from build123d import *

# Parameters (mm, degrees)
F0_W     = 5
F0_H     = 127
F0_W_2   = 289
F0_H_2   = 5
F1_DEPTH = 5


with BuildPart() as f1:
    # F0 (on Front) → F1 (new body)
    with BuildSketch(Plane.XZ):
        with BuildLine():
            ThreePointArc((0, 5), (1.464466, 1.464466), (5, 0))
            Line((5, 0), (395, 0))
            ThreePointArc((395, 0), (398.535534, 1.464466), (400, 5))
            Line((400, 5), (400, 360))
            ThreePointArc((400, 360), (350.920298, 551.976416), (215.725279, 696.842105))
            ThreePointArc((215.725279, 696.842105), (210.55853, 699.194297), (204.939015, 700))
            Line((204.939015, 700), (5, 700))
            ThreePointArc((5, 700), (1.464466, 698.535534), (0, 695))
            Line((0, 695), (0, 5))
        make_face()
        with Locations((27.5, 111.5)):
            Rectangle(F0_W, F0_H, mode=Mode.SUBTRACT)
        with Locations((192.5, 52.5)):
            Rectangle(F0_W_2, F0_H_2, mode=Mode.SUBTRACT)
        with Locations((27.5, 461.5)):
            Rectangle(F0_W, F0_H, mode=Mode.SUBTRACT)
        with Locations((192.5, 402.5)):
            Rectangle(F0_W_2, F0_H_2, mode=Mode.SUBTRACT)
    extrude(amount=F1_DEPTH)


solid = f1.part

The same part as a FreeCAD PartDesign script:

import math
import FreeCAD as App
import Part
import Sketcher
from FreeCAD import Vector

doc = App.newDocument("Part")
params = doc.addObject("Spreadsheet::Sheet", "Params")
for row, (alias, value) in enumerate([
    ("sketch1_radius", "5 mm"),
    ("sketch1_radius2", "400 mm"),
    ("sketch1_width", "5 mm"),
    ("sketch1_width2", "289 mm"),
    ("sketch1_height", "355 mm"),
    ("pad1_length", "5 mm"),
], start=1):
    params.set(f"A{row}", alias)
    params.set(f"B{row}", "=" + value)
    params.setAlias(f"B{row}", alias)

body = doc.addObject("PartDesign::Body", "Body")

# Sketch on XZ plane
sketch1 = body.newObject("Sketcher::SketchObject", "Sketch")
sketch1.AttachmentSupport = (doc.getObject("XZ_Plane"), [""])
sketch1.MapMode = "FlatFace"
sketch1.addGeometry([
    Part.ArcOfCircle(Part.Circle(Vector(5, 5, 0), Vector(0, 0, 1), 5), math.radians(180), math.radians(270)),  # 0
    Part.LineSegment(Vector(5, 0, 0), Vector(395, 0, 0)),  # 1
    Part.ArcOfCircle(Part.Circle(Vector(395, 5, 0), Vector(0, 0, 1), 5), math.radians(-90), math.radians(0)),  # 2
    Part.LineSegment(Vector(400, 5, 0), Vector(400, 360, 0)),  # 3
    Part.ArcOfCircle(Part.Circle(Vector(0, 360, 0), Vector(0, 0, 1), 400), math.radians(0), math.radians(57)),  # 4
    Part.ArcOfCircle(Part.Circle(Vector(204.9, 680, 0), Vector(0, 0, 1), 20), math.radians(57), math.radians(90)),  # 5
    Part.LineSegment(Vector(204.9, 700, 0), Vector(5, 700, 0)),  # 6
    Part.ArcOfCircle(Part.Circle(Vector(5, 695, 0), Vector(0, 0, 1), 5), math.radians(90), math.radians(180)),  # 7
    Part.LineSegment(Vector(0, 695, 0), Vector(0, 5, 0)),  # 8
    Part.LineSegment(Vector(30, 48, 0), Vector(25, 48, 0)),  # 9
    Part.LineSegment(Vector(25, 48, 0), Vector(25, 175, 0)),  # 10
    Part.LineSegment(Vector(25, 175, 0), Vector(30, 175, 0)),  # 11
    Part.LineSegment(Vector(30, 175, 0), Vector(30, 48, 0)),  # 12
    Part.LineSegment(Vector(337, 50, 0), Vector(48, 50, 0)),  # 13
    Part.LineSegment(Vector(48, 50, 0), Vector(48, 55, 0)),  # 14
    Part.LineSegment(Vector(48, 55, 0), Vector(337, 55, 0)),  # 15
    Part.LineSegment(Vector(337, 55, 0), Vector(337, 50, 0)),  # 16
    Part.LineSegment(Vector(30, 398, 0), Vector(25, 398, 0)),  # 17
    Part.LineSegment(Vector(25, 398, 0), Vector(25, 525, 0)),  # 18
    Part.LineSegment(Vector(25, 525, 0), Vector(30, 525, 0)),  # 19
    Part.LineSegment(Vector(30, 525, 0), Vector(30, 398, 0)),  # 20
    Part.LineSegment(Vector(337, 400, 0), Vector(48, 400, 0)),  # 21
    Part.LineSegment(Vector(48, 400, 0), Vector(48, 405, 0)),  # 22
    Part.LineSegment(Vector(48, 405, 0), Vector(337, 405, 0)),  # 23
    Part.LineSegment(Vector(337, 405, 0), Vector(337, 400, 0)),  # 24
], False)
sketch1.addConstraint([
    Sketcher.Constraint("Tangent", 0, 2, 1, 1),
    Sketcher.Constraint("Tangent", 1, 2, 2, 1),
    Sketcher.Constraint("Tangent", 2, 2, 3, 1),
    Sketcher.Constraint("Tangent", 3, 2, 4, 1),
    Sketcher.Constraint("Tangent", 4, 2, 5, 1),
    Sketcher.Constraint("Tangent", 5, 2, 6, 1),
    Sketcher.Constraint("Tangent", 6, 2, 7, 1),
    Sketcher.Constraint("Tangent", 7, 2, 8, 1),
    Sketcher.Constraint("Tangent", 8, 2, 0, 1),
    Sketcher.Constraint("Coincident", 9, 2, 10, 1),
    Sketcher.Constraint("Coincident", 10, 2, 11, 1),
    Sketcher.Constraint("Coincident", 11, 2, 12, 1),
    Sketcher.Constraint("Coincident", 12, 2, 9, 1),
    Sketcher.Constraint("Coincident", 13, 2, 14, 1),
    Sketcher.Constraint("Coincident", 14, 2, 15, 1),
    Sketcher.Constraint("Coincident", 15, 2, 16, 1),
    Sketcher.Constraint("Coincident", 16, 2, 13, 1),
    Sketcher.Constraint("Coincident", 17, 2, 18, 1),
    Sketcher.Constraint("Coincident", 18, 2, 19, 1),
    Sketcher.Constraint("Coincident", 19, 2, 20, 1),
    Sketcher.Constraint("Coincident", 20, 2, 17, 1),
    Sketcher.Constraint("Coincident", 21, 2, 22, 1),
    Sketcher.Constraint("Coincident", 22, 2, 23, 1),
    Sketcher.Constraint("Coincident", 23, 2, 24, 1),
    Sketcher.Constraint("Coincident", 24, 2, 21, 1),
    Sketcher.Constraint("Horizontal", 1),
    Sketcher.Constraint("Vertical", 3),
    Sketcher.Constraint("Horizontal", 6),
    Sketcher.Constraint("Vertical", 8),
    Sketcher.Constraint("Horizontal", 9),
    Sketcher.Constraint("Vertical", 10),
    Sketcher.Constraint("Horizontal", 11),
    Sketcher.Constraint("Vertical", 12),
    Sketcher.Constraint("Horizontal", 13),
    Sketcher.Constraint("Vertical", 14),
    Sketcher.Constraint("Horizontal", 15),
    Sketcher.Constraint("Vertical", 16),
    Sketcher.Constraint("Horizontal", 17),
    Sketcher.Constraint("Vertical", 18),
    Sketcher.Constraint("Horizontal", 19),
    Sketcher.Constraint("Vertical", 20),
    Sketcher.Constraint("Horizontal", 21),
    Sketcher.Constraint("Vertical", 22),
    Sketcher.Constraint("Horizontal", 23),
    Sketcher.Constraint("Vertical", 24),
    Sketcher.Constraint("Equal", 0, 2),
    Sketcher.Constraint("Equal", 2, 7),
    Sketcher.Constraint("PointOnObject", 4, 3, -2),
    Sketcher.Constraint("PointOnObject", 0, 2, -1),
    Sketcher.Constraint("PointOnObject", 7, 2, -2),
    Sketcher.Constraint("Vertical", 10, 2, 17, 2),
    Sketcher.Constraint("Vertical", 12, 2, 19, 2),
    Sketcher.Constraint("Vertical", 14, 2, 21, 2),
    Sketcher.Constraint("Vertical", 16, 2, 23, 2),
    Sketcher.Constraint("Equal", 19, 14),
    Sketcher.Constraint("Equal", 12, 18),
    Sketcher.Constraint("Equal", 16, 22),
    Sketcher.Constraint("Radius", 0, 5.0),
    Sketcher.Constraint("Radius", 4, 400.0),
    Sketcher.Constraint("DistanceX", 9, 2, 9, 1, 5.0),
    Sketcher.Constraint("DistanceX", 13, 2, 13, 1, 289.0),
    Sketcher.Constraint("DistanceY", 3, 1, 3, 2, 355.0),
    Sketcher.Constraint("DistanceY", 8, 2, 8, 1, 690.0),
    Sketcher.Constraint("DistanceY", 10, 1, 10, 2, 127.0),
    Sketcher.Constraint("DistanceX", -1, 1, 9, 2, 25.0),
    Sketcher.Constraint("DistanceY", -1, 1, 9, 2, 48.0),
    Sketcher.Constraint("DistanceX", -1, 1, 13, 2, 48.0),
    Sketcher.Constraint("DistanceY", -1, 1, 13, 2, 50.0),
    Sketcher.Constraint("DistanceY", -1, 1, 17, 2, 398.0),
    Sketcher.Constraint("DistanceY", -1, 1, 21, 2, 400.0),
    Sketcher.Constraint("Radius", 5, 20.000006),
])
sketch1.setExpression("Constraints[57]", "Params.sketch1_radius")
sketch1.setExpression("Constraints[58]", "Params.sketch1_radius2")
sketch1.setExpression("Constraints[59]", "Params.sketch1_width")
sketch1.setExpression("Constraints[60]", "Params.sketch1_width2")
sketch1.setExpression("Constraints[61]", "Params.sketch1_height")
pad1 = body.newObject("PartDesign::Pad", "Pad")
pad1.Profile = sketch1
pad1.setExpression("Length", "Params.pad1_length")

doc.recompute()
